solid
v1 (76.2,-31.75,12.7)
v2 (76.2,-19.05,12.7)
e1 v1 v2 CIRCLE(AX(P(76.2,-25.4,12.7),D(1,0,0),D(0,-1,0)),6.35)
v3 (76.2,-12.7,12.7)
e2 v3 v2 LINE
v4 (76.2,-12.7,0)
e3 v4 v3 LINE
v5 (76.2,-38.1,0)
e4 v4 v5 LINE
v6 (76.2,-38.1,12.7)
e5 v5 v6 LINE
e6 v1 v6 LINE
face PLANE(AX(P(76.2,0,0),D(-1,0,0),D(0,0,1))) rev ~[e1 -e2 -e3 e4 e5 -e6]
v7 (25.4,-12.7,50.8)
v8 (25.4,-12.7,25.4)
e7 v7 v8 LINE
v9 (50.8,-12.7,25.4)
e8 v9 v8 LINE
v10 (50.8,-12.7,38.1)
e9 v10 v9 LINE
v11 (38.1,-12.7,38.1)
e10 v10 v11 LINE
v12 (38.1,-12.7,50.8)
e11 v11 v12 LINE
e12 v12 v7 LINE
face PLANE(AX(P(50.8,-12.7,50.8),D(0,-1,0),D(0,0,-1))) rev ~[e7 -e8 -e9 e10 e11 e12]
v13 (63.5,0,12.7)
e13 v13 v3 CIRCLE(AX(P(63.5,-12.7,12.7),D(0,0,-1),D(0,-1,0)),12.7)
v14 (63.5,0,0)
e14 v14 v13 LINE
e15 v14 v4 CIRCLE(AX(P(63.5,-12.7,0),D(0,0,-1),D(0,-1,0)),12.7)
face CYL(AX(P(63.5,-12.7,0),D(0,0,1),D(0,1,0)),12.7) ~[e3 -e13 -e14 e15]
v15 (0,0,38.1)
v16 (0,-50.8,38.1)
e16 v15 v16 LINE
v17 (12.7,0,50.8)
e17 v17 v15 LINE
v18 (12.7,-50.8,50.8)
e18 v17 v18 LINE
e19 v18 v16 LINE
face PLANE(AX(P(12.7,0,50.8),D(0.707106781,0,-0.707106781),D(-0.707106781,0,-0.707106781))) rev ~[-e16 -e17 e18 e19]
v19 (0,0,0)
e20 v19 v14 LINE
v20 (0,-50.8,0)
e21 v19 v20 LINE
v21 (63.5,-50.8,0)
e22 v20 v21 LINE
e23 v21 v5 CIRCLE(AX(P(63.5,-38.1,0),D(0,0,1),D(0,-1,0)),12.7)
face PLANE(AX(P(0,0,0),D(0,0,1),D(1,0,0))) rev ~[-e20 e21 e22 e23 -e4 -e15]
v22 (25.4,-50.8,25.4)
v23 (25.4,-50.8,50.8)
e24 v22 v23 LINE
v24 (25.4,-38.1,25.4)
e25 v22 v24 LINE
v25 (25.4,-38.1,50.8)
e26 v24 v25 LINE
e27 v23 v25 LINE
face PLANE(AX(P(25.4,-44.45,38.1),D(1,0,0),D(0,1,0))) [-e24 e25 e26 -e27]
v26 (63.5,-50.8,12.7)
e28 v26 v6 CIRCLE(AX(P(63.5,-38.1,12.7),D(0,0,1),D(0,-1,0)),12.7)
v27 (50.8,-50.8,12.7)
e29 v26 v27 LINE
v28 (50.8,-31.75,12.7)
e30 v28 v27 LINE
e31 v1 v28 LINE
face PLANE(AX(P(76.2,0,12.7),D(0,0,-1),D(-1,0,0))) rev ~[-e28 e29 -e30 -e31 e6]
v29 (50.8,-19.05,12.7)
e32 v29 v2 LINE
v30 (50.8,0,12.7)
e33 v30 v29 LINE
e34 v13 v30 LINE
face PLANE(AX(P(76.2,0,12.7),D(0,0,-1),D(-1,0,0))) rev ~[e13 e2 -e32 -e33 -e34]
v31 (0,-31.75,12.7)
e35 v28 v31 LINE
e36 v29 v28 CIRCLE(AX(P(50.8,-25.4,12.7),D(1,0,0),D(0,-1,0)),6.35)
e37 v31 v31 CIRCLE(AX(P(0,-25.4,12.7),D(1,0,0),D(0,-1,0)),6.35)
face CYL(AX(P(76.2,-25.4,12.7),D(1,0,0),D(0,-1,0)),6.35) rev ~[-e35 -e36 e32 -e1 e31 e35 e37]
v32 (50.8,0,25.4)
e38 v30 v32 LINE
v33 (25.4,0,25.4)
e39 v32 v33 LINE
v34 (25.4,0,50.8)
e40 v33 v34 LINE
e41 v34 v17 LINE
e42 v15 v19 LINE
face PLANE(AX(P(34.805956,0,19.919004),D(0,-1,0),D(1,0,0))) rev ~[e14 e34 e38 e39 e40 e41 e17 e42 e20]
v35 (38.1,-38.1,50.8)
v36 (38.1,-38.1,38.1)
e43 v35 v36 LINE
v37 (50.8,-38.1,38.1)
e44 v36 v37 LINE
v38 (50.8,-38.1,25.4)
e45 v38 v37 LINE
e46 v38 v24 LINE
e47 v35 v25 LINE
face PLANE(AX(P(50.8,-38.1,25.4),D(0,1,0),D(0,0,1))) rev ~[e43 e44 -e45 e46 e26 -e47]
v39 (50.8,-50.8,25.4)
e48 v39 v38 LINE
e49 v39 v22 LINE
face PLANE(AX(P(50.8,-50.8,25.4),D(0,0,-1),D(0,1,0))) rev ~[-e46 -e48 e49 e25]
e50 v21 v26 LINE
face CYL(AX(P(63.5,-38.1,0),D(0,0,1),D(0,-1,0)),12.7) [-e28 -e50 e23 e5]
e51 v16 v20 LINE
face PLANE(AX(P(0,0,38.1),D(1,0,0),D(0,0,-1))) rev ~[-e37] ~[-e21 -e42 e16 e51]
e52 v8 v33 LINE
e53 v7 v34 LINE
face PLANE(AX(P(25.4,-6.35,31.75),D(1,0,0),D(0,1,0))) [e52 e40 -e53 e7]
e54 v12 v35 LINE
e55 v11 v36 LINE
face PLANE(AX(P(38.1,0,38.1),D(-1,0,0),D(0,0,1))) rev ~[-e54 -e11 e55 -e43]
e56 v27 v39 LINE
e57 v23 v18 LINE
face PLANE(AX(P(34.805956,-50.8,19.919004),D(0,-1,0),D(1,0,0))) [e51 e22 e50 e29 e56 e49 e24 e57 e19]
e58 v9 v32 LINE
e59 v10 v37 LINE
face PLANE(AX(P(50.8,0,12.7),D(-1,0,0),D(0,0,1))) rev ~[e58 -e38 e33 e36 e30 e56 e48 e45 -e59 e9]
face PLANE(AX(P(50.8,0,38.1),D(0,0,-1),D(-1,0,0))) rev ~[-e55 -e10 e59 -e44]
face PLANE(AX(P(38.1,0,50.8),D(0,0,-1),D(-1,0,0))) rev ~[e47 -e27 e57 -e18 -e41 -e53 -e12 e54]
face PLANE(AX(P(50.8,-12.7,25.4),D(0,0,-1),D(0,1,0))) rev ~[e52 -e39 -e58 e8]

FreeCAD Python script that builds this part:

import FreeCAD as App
import Part
import Sketcher
Q = App.Units.Quantity


def edges_at(feature, points):
    """Names of the edges that pass closest to the given points."""
    edges = feature.Shape.Edges
    near = lambda p: min(range(len(edges)), key=lambda i: edges[i].distToShape(Part.Vertex(*p))[0])
    return sorted({f"Edge{near(p) + 1}" for p in points})


def add_polygon(sketch, points):
    """Adds a closed chain of lines whose ends are joined by coincident constraints."""
    first, n = sketch.GeometryCount, len(points)
    for a, b in zip(points, points[1:] + points[:1]):
        sketch.addGeometry(Part.LineSegment(App.Vector(*a, 0), App.Vector(*b, 0)), False)
    for i in range(n):
        sketch.addConstraint(Sketcher.Constraint("Coincident", first + i, 2, first + (i + 1) % n, 1))

doc = App.newDocument("Part")
params = doc.addObject("Spreadsheet::Sheet", "Params")
for row, (alias, value) in enumerate([
    ("sketch1_width", "3 in"),
    ("sketch1_width2", "1 in"),
    ("sketch1_width3", "0.5 in"),
    ("pad1_length", "2 in"),
    ("sketch2_height", "1 in"),
    ("sketch2_width", "0.5 in"),
    ("pocket1_length", "1 in"),
    ("sketch3_height", "1 in"),
    ("sketch3_width", "0.5 in"),
    ("pocket2_length", "1 in"),
    ("sketch4_diameter", "0.5 in"),
    ("fillet_radius", "0.5 in"),
], start=1):
    params.set(f"A{row}", alias)
    params.set(f"B{row}", "=" + value)
    params.setAlias(f"B{row}", alias)

body = doc.addObject("PartDesign::Body", "Body")

# Sketch on XZ plane
sketch1 = body.newObject("Sketcher::SketchObject", "Sketch")
sketch1.AttachmentSupport = (doc.getObject("XZ_Plane"), [""])
sketch1.MapMode = "FlatFace"
add_polygon(sketch1, [(0, 38), (0, 0), (76, 0), (76, 13), (51, 13), (51, 38), (38, 38), (38, 51), (13, 51)])  # lines 0-8
sketch1.addConstraint(Sketcher.Constraint("Vertical", 0))
sketch1.addConstraint(Sketcher.Constraint("Horizontal", 1))
sketch1.addConstraint(Sketcher.Constraint("Vertical", 2))
sketch1.addConstraint(Sketcher.Constraint("Horizontal", 3))
sketch1.addConstraint(Sketcher.Constraint("Vertical", 4))
sketch1.addConstraint(Sketcher.Constraint("Horizontal", 5))
sketch1.addConstraint(Sketcher.Constraint("Vertical", 6))
sketch1.addConstraint(Sketcher.Constraint("Horizontal", 7))
sketch1.addConstraint(Sketcher.Constraint("Coincident", 0, 2, -1, 1))
sketch1.addConstraint(Sketcher.Constraint("Horizontal", 5, 2, 8, 2))
sketch1.addConstraint(Sketcher.Constraint("Equal", 3, 7))
sketch1.addConstraint(Sketcher.Constraint("Equal", 5, 2))
sketch1.addConstraint(Sketcher.Constraint("Equal", 7, 4))
sketch1.addConstraint(Sketcher.Constraint("Equal", 2, 6))
sketch1.addConstraint(Sketcher.Constraint("DistanceX", 1, 1, 1, 2, Q("3 in")))
sketch1.addConstraint(Sketcher.Constraint("DistanceX", 3, 2, 3, 1, Q("1 in")))
sketch1.addConstraint(Sketcher.Constraint("DistanceX", 5, 2, 5, 1, Q("0.5 in")))
sketch1.setExpression("Constraints[23]", "Params.sketch1_width")
sketch1.setExpression("Constraints[24]", "Params.sketch1_width2")
sketch1.setExpression("Constraints[25]", "Params.sketch1_width3")
pad1 = body.newObject("PartDesign::Pad", "Pad")
pad1.Profile = sketch1
pad1.setExpression("Length", "Params.pad1_length")

# Sketch on YZ plane
sketch2 = body.newObject("Sketcher::SketchObject", "Sketch001")
sketch2.AttachmentSupport = (doc.getObject("YZ_Plane"), [""])
sketch2.MapMode = "FlatFace"
sketch2.AttachmentOffset = App.Placement(App.Vector(0, 0, 2 * 25.4), App.Rotation())
add_polygon(sketch2, [(-51, 51), (-51, 25), (-38, 25), (-38, 51)])  # lines 0-3
sketch2.addConstraint(Sketcher.Constraint("Vertical", 0))
sketch2.addConstraint(Sketcher.Constraint("Horizontal", 1))
sketch2.addConstraint(Sketcher.Constraint("Vertical", 2))
sketch2.addConstraint(Sketcher.Constraint("Horizontal", 3))
sketch2.addConstraint(Sketcher.Constraint("DistanceY", 0, 2, 0, 1, Q("1 in")))
sketch2.addConstraint(Sketcher.Constraint("DistanceX", 1, 1, 1, 2, Q("0.5 in")))
sketch2.addConstraint(Sketcher.Constraint("DistanceX", 0, 2, -1, 1, Q("2 in")))
sketch2.addConstraint(Sketcher.Constraint("DistanceY", -1, 1, 0, 2, Q("1 in")))
sketch2.setExpression("Constraints[8]", "Params.sketch2_height")
sketch2.setExpression("Constraints[9]", "Params.sketch2_width")
pocket1 = body.newObject("PartDesign::Pocket", "Pocket")
pocket1.Profile = sketch2
pocket1.setExpression("Length", "Params.pocket1_length")

# Sketch on YZ plane
sketch3 = body.newObject("Sketcher::SketchObject", "Sketch002")
sketch3.AttachmentSupport = (doc.getObject("YZ_Plane"), [""])
sketch3.MapMode = "FlatFace"
sketch3.AttachmentOffset = App.Placement(App.Vector(0, 0, 2 * 25.4), App.Rotation())
add_polygon(sketch3, [(-13, 25), (0, 25), (0, 51), (-13, 51)])  # lines 0-3
sketch3.addConstraint(Sketcher.Constraint("Horizontal", 0))
sketch3.addConstraint(Sketcher.Constraint("Vertical", 1))
sketch3.addConstraint(Sketcher.Constraint("Horizontal", 2))
sketch3.addConstraint(Sketcher.Constraint("Vertical", 3))
sketch3.addConstraint(Sketcher.Constraint("PointOnObject", 0, 2, -2))
sketch3.addConstraint(Sketcher.Constraint("DistanceY", 1, 1, 1, 2, Q("1 in")))
sketch3.addConstraint(Sketcher.Constraint("DistanceX", 0, 1, 0, 2, Q("0.5 in")))
sketch3.addConstraint(Sketcher.Constraint("DistanceY", -1, 1, 0, 2, Q("1 in")))
sketch3.setExpression("Constraints[9]", "Params.sketch3_height")
sketch3.setExpression("Constraints[10]", "Params.sketch3_width")
pocket2 = body.newObject("PartDesign::Pocket", "Pocket001")
pocket2.Profile = sketch3
pocket2.setExpression("Length", "Params.pocket2_length")

# Sketch on YZ plane
sketch4 = body.newObject("Sketcher::SketchObject", "Sketch003")
sketch4.AttachmentSupport = (doc.getObject("YZ_Plane"), [""])
sketch4.MapMode = "FlatFace"
sketch4.AttachmentOffset = App.Placement(App.Vector(0, 0, 3 * 25.4), App.Rotation())
sketch4.addGeometry(Part.Circle(App.Vector(-25, 13, 0), App.Vector(0, 0, 1), 6), False)
sketch4.addConstraint(Sketcher.Constraint("Diameter", 0, Q("0.5 in")))
sketch4.addConstraint(Sketcher.Constraint("DistanceX", 0, 3, -1, 1, Q("1 in")))
sketch4.addConstraint(Sketcher.Constraint("DistanceY", -1, 1, 0, 3, Q("0.5 in")))
sketch4.setExpression("Constraints[0]", "Params.sketch4_diameter")
pocket3 = body.newObject("PartDesign::Pocket", "Pocket002")
pocket3.Profile = sketch4
pocket3.Type = "ThroughAll"
doc.recompute()

fillet = body.newObject("PartDesign::Fillet", "Fillet")
fillet.Base = (pocket3, edges_at(pocket3, [(76.2, -50.8, 6.35), (76.2, 0, 6.35)]))
fillet.setExpression("Radius", "Params.fillet_radius")

doc.recompute()
